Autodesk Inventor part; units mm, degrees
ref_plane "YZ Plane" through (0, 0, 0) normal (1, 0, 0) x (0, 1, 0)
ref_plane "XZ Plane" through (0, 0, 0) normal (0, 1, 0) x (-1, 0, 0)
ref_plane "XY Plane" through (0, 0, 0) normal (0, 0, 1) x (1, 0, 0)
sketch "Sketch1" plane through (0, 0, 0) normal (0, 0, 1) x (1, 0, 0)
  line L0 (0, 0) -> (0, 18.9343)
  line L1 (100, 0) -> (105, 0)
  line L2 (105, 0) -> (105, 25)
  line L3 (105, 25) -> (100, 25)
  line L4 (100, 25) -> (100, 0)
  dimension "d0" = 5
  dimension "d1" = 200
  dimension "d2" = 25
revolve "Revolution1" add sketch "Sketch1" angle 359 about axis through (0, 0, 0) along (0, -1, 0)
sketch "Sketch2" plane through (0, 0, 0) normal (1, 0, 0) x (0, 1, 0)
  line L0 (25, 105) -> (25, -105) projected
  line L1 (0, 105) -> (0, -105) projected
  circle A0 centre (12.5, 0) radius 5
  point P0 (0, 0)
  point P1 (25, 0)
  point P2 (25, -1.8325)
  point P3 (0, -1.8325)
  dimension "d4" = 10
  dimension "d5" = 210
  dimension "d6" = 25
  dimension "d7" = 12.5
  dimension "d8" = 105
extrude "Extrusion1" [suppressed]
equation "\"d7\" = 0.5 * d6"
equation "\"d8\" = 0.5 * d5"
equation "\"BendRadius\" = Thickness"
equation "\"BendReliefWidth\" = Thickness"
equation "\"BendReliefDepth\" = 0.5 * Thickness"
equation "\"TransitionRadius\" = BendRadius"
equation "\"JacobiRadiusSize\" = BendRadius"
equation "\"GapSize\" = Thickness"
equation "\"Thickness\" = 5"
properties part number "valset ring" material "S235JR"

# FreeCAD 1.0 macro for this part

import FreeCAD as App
import Part
import Sketcher

V = App.Vector


def add_polygon(sketch, points):
    """Adds a closed chain of lines whose ends are joined by coincident constraints."""
    first, n = sketch.GeometryCount, len(points)
    for a, b in zip(points, points[1:] + points[:1]):
        sketch.addGeometry(Part.LineSegment(App.Vector(*a, 0), App.Vector(*b, 0)), False)
    for i in range(n):
        sketch.addConstraint(Sketcher.Constraint("Coincident", first + i, 2, first + (i + 1) % n, 1))

doc = App.newDocument("Part")
body = doc.addObject("PartDesign::Body", "Body")

# Sketch on XY plane
sketch1 = body.newObject("Sketcher::SketchObject", "Sketch")
sketch1.AttachmentSupport = (doc.getObject("XY_Plane"), [""])
sketch1.MapMode = "FlatFace"
add_polygon(sketch1, [(100, 25), (100, 0), (105, 0), (105, 25)])  # lines 0-3
sketch1.addConstraint(Sketcher.Constraint("Vertical", 0))
sketch1.addConstraint(Sketcher.Constraint("Horizontal", 1))
sketch1.addConstraint(Sketcher.Constraint("Vertical", 2))
sketch1.addConstraint(Sketcher.Constraint("Horizontal", 3))
sketch1.addConstraint(Sketcher.Constraint("PointOnObject", 0, 2, -1))
sketch1.addConstraint(Sketcher.Constraint("DistanceX", 1, 1, 1, 2, 5.0))
sketch1.addConstraint(Sketcher.Constraint("DistanceY", 0, 2, 0, 1, 25.0))
sketch1.addConstraint(Sketcher.Constraint("DistanceX", -1, 1, 0, 2, 100.0))
revolution = body.newObject("PartDesign::Revolution", "Revolution")
revolution.Profile = sketch1
revolution.ReferenceAxis = (sketch1, ["V_Axis"])
revolution.Angle = 359
revolution.Reversed = True

doc.recompute()
